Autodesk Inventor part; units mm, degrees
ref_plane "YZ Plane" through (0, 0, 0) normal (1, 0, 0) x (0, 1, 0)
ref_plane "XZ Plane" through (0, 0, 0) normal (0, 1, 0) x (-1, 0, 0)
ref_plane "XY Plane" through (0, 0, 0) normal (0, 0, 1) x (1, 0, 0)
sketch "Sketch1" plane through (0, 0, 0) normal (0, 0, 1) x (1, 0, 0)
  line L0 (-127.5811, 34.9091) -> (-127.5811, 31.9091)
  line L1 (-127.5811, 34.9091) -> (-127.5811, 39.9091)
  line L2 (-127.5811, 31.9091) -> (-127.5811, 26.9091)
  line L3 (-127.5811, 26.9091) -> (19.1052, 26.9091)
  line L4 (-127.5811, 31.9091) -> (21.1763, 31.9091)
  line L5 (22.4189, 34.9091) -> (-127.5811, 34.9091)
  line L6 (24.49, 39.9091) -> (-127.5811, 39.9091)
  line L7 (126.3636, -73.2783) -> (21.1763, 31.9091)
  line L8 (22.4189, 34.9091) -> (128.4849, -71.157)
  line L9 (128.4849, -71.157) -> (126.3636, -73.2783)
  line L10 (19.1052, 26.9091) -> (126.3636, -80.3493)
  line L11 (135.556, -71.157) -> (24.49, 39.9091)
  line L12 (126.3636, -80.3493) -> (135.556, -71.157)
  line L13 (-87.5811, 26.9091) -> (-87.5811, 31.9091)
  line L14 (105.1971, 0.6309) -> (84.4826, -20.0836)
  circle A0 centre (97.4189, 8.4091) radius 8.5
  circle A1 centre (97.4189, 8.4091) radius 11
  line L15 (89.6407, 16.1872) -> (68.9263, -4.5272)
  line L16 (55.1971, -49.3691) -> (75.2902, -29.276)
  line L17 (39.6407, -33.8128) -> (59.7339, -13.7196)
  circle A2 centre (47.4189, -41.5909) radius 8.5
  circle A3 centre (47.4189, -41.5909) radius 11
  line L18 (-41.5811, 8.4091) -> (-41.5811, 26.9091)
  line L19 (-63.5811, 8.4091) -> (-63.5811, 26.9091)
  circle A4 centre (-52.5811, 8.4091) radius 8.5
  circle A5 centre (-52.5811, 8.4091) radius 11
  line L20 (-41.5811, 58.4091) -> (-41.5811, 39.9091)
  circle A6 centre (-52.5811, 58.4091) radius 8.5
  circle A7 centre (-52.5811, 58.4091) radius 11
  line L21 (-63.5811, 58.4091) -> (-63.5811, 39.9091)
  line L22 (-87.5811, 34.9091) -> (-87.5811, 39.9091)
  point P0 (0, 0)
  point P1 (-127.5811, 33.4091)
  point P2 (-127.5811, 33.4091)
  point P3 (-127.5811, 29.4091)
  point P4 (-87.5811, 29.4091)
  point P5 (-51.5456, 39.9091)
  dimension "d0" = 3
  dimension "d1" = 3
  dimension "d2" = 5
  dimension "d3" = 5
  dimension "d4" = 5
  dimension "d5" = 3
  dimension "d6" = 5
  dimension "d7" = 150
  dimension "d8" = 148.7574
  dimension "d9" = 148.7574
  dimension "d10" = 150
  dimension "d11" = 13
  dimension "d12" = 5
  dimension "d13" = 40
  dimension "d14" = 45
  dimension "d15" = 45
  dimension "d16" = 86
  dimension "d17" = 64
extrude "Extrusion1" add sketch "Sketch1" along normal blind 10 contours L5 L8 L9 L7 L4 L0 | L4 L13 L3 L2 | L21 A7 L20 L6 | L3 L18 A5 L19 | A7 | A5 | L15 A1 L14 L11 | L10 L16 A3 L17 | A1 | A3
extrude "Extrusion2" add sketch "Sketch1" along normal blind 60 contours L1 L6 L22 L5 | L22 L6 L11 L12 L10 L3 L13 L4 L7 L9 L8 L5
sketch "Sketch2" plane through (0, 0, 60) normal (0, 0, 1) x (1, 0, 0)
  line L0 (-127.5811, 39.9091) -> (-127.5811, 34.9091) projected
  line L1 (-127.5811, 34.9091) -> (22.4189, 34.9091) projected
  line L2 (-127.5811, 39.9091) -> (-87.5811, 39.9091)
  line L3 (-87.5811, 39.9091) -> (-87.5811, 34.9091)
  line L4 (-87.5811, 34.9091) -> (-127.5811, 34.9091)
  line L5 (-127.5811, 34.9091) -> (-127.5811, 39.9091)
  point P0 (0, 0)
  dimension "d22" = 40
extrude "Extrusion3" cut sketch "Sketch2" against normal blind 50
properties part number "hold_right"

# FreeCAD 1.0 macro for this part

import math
import FreeCAD as App
import Part
import Sketcher

V = App.Vector
Q = App.Units.Quantity


def add_polygon(sketch, points):
    """Adds a closed chain of lines whose ends are joined by coincident constraints."""
    first, n = sketch.GeometryCount, len(points)
    for a, b in zip(points, points[1:] + points[:1]):
        sketch.addGeometry(Part.LineSegment(App.Vector(*a, 0), App.Vector(*b, 0)), False)
    for i in range(n):
        sketch.addConstraint(Sketcher.Constraint("Coincident", first + i, 2, first + (i + 1) % n, 1))

doc = App.newDocument("Part")
body = doc.addObject("PartDesign::Body", "Body")
body.AllowCompound = True

# Sketch on XY plane
sketch1 = body.newObject("Sketcher::SketchObject", "Sketch")
sketch1.AttachmentSupport = (doc.getObject("XY_Plane"), [""])
sketch1.MapMode = "FlatFace"
add_polygon(sketch1, [(-127.5811, 34.9091), (-127.5811, 26.9091), (-87.5811, 26.9091), (-87.5811, 31.9091), (21.1763, 31.9091), (126.3636, -73.2783), (128.4849, -71.157), (22.4189, 34.9091)])  # lines 0-7
sketch1.addGeometry(Part.LineSegment(V(-63.5811, 58.4091, 0), V(-63.5811, 39.9091, 0)), False)  # 8
sketch1.addGeometry(Part.LineSegment(V(-63.5811, 39.9091, 0), V(-41.5811, 39.9091, 0)), False)  # 9
sketch1.addGeometry(Part.LineSegment(V(-41.5811, 39.9091, 0), V(-41.5811, 58.4091, 0)), False)  # 10
sketch1.addGeometry(Part.ArcOfCircle(Part.Circle(V(-52.5811, 58.4091, 0), V(0, 0, 1), 11), math.radians(0), math.radians(180)), False)  # 11
sketch1.addGeometry(Part.Circle(V(-52.5811, 58.4091, 0), V(0, 0, 1), 8.5), False)  # 12
sketch1.addGeometry(Part.LineSegment(V(-41.5811, 26.9091, 0), V(-63.5811, 26.9091, 0)), False)  # 13
sketch1.addGeometry(Part.LineSegment(V(-63.5811, 26.9091, 0), V(-63.5811, 8.4091, 0)), False)  # 14
sketch1.addGeometry(Part.ArcOfCircle(Part.Circle(V(-52.5811, 8.4091, 0), V(0, 0, 1), 11), math.radians(180), math.radians(360)), False)  # 15
sketch1.addGeometry(Part.LineSegment(V(-41.5811, 8.4091, 0), V(-41.5811, 26.9091, 0)), False)  # 16
sketch1.addGeometry(Part.Circle(V(-52.5811, 8.4091, 0), V(0, 0, 1), 8.5), False)  # 17
sketch1.addGeometry(Part.LineSegment(V(89.6407, 16.1872, 0), V(68.9263, -4.5272, 0)), False)  # 18
sketch1.addGeometry(Part.LineSegment(V(68.92628, -4.52722, 0), V(84.482623, -20.083577, 0)), False)  # 19
sketch1.addGeometry(Part.LineSegment(V(84.4826, -20.0836, 0), V(105.1971, 0.6309, 0)), False)  # 20
sketch1.addGeometry(Part.ArcOfCircle(Part.Circle(V(97.4189, 8.4091, 0), V(0, 0, 1), 11), math.radians(-45), math.radians(135.000368)), False)  # 21
sketch1.addGeometry(Part.Circle(V(97.4189, 8.4091, 0), V(0, 0, 1), 8.5), False)  # 22
sketch1.addGeometry(Part.LineSegment(V(75.29025, -29.27595, 0), V(59.7339, -13.7196, 0)), False)  # 23
sketch1.addGeometry(Part.LineSegment(V(59.7339, -13.7196, 0), V(39.6407, -33.8128, 0)), False)  # 24
sketch1.addGeometry(Part.ArcOfCircle(Part.Circle(V(47.4189, -41.5909, 0), V(0, 0, 1), 11), math.radians(135.000368), math.radians(315)), False)  # 25
sketch1.addGeometry(Part.LineSegment(V(55.1971, -49.3691, 0), V(75.2902, -29.276, 0)), False)  # 26
sketch1.addGeometry(Part.Circle(V(47.4189, -41.5909, 0), V(0, 0, 1), 8.5), False)  # 27
sketch1.addConstraint(Sketcher.Constraint("Coincident", 8, 2, 9, 1))
sketch1.addConstraint(Sketcher.Constraint("Coincident", 9, 2, 10, 1))
sketch1.addConstraint(Sketcher.Constraint("Tangent", 10, 2, 11, 1))
sketch1.addConstraint(Sketcher.Constraint("Tangent", 11, 2, 8, 1))
sketch1.addConstraint(Sketcher.Constraint("Coincident", 13, 2, 14, 1))
sketch1.addConstraint(Sketcher.Constraint("Tangent", 14, 2, 15, 1))
sketch1.addConstraint(Sketcher.Constraint("Tangent", 15, 2, 16, 1))
sketch1.addConstraint(Sketcher.Constraint("Coincident", 16, 2, 13, 1))
sketch1.addConstraint(Sketcher.Constraint("Coincident", 18, 2, 19, 1))
sketch1.addConstraint(Sketcher.Constraint("Coincident", 19, 2, 20, 1))
sketch1.addConstraint(Sketcher.Constraint("Tangent", 20, 2, 21, 1))
sketch1.addConstraint(Sketcher.Constraint("Tangent", 21, 2, 18, 1))
sketch1.addConstraint(Sketcher.Constraint("Coincident", 23, 2, 24, 1))
sketch1.addConstraint(Sketcher.Constraint("Tangent", 24, 2, 25, 1))
sketch1.addConstraint(Sketcher.Constraint("Tangent", 25, 2, 26, 1))
sketch1.addConstraint(Sketcher.Constraint("Coincident", 26, 2, 23, 1))
sketch1.addConstraint(Sketcher.Constraint("Vertical", 0))
sketch1.addConstraint(Sketcher.Constraint("Horizontal", 1))
sketch1.addConstraint(Sketcher.Constraint("Vertical", 2))
sketch1.addConstraint(Sketcher.Constraint("Horizontal", 3))
sketch1.addConstraint(Sketcher.Constraint("Horizontal", 7))
sketch1.addConstraint(Sketcher.Constraint("Vertical", 8))
sketch1.addConstraint(Sketcher.Constraint("Horizontal", 9))
sketch1.addConstraint(Sketcher.Constraint("Vertical", 10))
sketch1.addConstraint(Sketcher.Constraint("Horizontal", 13))
sketch1.addConstraint(Sketcher.Constraint("Vertical", 14))
sketch1.addConstraint(Sketcher.Constraint("Vertical", 16))
sketch1.addConstraint(Sketcher.Constraint("Coincident", 12, 3, 11, 3))
sketch1.addConstraint(Sketcher.Constraint("Coincident", 17, 3, 15, 3))
sketch1.addConstraint(Sketcher.Constraint("Coincident", 22, 3, 21, 3))
sketch1.addConstraint(Sketcher.Constraint("Coincident", 27, 3, 25, 3))
sketch1.addConstraint(Sketcher.Constraint("Equal", 11, 15))
sketch1.addConstraint(Sketcher.Constraint("Equal", 12, 17))
sketch1.addConstraint(Sketcher.Constraint("Equal", 15, 21))
sketch1.addConstraint(Sketcher.Constraint("Equal", 17, 22))
sketch1.addConstraint(Sketcher.Constraint("Equal", 21, 25))
sketch1.addConstraint(Sketcher.Constraint("Equal", 22, 27))
sketch1.addConstraint(Sketcher.Constraint("Perpendicular", 4, 5))
sketch1.addConstraint(Sketcher.Constraint("Perpendicular", 5, 6))
sketch1.addConstraint(Sketcher.Constraint("Perpendicular", 6, 18))
sketch1.addConstraint(Sketcher.Constraint("Perpendicular", 18, 19))
sketch1.addConstraint(Sketcher.Constraint("Perpendicular", 19, 20))
sketch1.addConstraint(Sketcher.Constraint("Perpendicular", 20, 23))
sketch1.addConstraint(Sketcher.Constraint("Perpendicular", 23, 24))
sketch1.addConstraint(Sketcher.Constraint("Parallel", 24, 26))
sketch1.addConstraint(Sketcher.Constraint("Horizontal", 17, 3, 21, 3))
sketch1.addConstraint(Sketcher.Constraint("Horizontal", 1, 2, 13, 2))
sketch1.addConstraint(Sketcher.Constraint("Vertical", 12, 3, 15, 3))
sketch1.addConstraint(Sketcher.Constraint("Equal", 10, 14))
sketch1.addConstraint(Sketcher.Constraint("DistanceX", 1, 1, 1, 2, Q("40 mm")))
sketch1.addConstraint(Sketcher.Constraint("DistanceX", 7, 2, 7, 1, Q("150 mm")))
sketch1.addConstraint(Sketcher.Constraint("DistanceY", 2, 1, 2, 2, Q("5 mm")))
sketch1.addConstraint(Sketcher.Constraint("Angle", 4, Q("-45 deg")))
sketch1.addConstraint(Sketcher.Constraint("Distance", 5, Q("3 mm")))
sketch1.addConstraint(Sketcher.Constraint("Distance", 6, Q("150 mm")))
sketch1.addConstraint(Sketcher.Constraint("Diameter", 12, Q("17 mm")))
sketch1.addConstraint(Sketcher.Constraint("Radius", 11, Q("11 mm")))
sketch1.addConstraint(Sketcher.Constraint("DistanceX", 15, 3, 21, 3, Q("150 mm")))
sketch1.addConstraint(Sketcher.Constraint("DistanceY", 3, 2, 6, 2, Q("3 mm")))
sketch1.addConstraint(Sketcher.Constraint("DistanceY", 1, 2, 8, 2, Q("13 mm")))
sketch1.addConstraint(Sketcher.Constraint("DistanceY", 8, 2, 8, 1, Q("18.5 mm")))
sketch1.addConstraint(Sketcher.Constraint("DistanceX", 25, 3, 21, 3, Q("50 mm")))
sketch1.addConstraint(Sketcher.Constraint("DistanceY", 25, 3, 21, 3, Q("50 mm")))
sketch1.addConstraint(Sketcher.Constraint("DistanceX", 0, 2, 15, 3, Q("75 mm")))
sketch1.addConstraint(Sketcher.Constraint("DistanceX", 3, 2, 18, 2, Q("47.75 mm")))
sketch1.addConstraint(Sketcher.Constraint("Distance", 24, Q("28.416 mm")))
sketch1.addConstraint(Sketcher.Constraint("DistanceX", 11, 3, -1, 1, Q("52.581 mm")))
sketch1.addConstraint(Sketcher.Constraint("DistanceY", -1, 1, 11, 3, Q("58.409 mm")))
pad1 = body.newObject("PartDesign::Pad", "Pad")
pad1.Profile = sketch1
pad1.Length = 10

# Sketch on XY plane
sketch2 = body.newObject("Sketcher::SketchObject", "Sketch001")
sketch2.AttachmentSupport = (doc.getObject("XY_Plane"), [""])
sketch2.MapMode = "FlatFace"
add_polygon(sketch2, [(-127.5811, 39.9091), (-127.5811, 34.9091), (22.4189, 34.9091), (128.4849, -71.157), (126.3636, -73.2783), (21.1763, 31.9091), (-87.5811, 31.9091), (-87.5811, 26.9091), (19.1052, 26.9091), (126.3636, -80.3493), (135.556, -71.157), (24.49, 39.9091)])  # lines 0-11
sketch2.addConstraint(Sketcher.Constraint("Vertical", 0))
sketch2.addConstraint(Sketcher.Constraint("Horizontal", 1))
sketch2.addConstraint(Sketcher.Constraint("Horizontal", 5))
sketch2.addConstraint(Sketcher.Constraint("Vertical", 6))
sketch2.addConstraint(Sketcher.Constraint("Horizontal", 7))
sketch2.addConstraint(Sketcher.Constraint("Horizontal", 11))
sketch2.addConstraint(Sketcher.Constraint("Perpendicular", 2, 3))
sketch2.addConstraint(Sketcher.Constraint("Perpendicular", 3, 4))
sketch2.addConstraint(Sketcher.Constraint("Parallel", 4, 8))
sketch2.addConstraint(Sketcher.Constraint("Perpendicular", 8, 9))
sketch2.addConstraint(Sketcher.Constraint("Perpendicular", 9, 10))
sketch2.addConstraint(Sketcher.Constraint("Horizontal", 2, 2, 9, 2))
sketch2.addConstraint(Sketcher.Constraint("Vertical", 3, 2, 8, 2))
sketch2.addConstraint(Sketcher.Constraint("Equal", 0, 6))
sketch2.addConstraint(Sketcher.Constraint("DistanceX", 1, 1, 1, 2, Q("150 mm")))
sketch2.addConstraint(Sketcher.Constraint("DistanceY", 0, 2, 0, 1, Q("5 mm")))
sketch2.addConstraint(Sketcher.Constraint("Angle", 2, Q("-45 deg")))
sketch2.addConstraint(Sketcher.Constraint("Distance", 2, Q("150 mm")))
sketch2.addConstraint(Sketcher.Constraint("Distance", 3, Q("3 mm")))
sketch2.addConstraint(Sketcher.Constraint("Distance", 9, Q("13 mm")))
sketch2.addConstraint(Sketcher.Constraint("DistanceY", 4, 2, 1, 2, Q("3 mm")))
sketch2.addConstraint(Sketcher.Constraint("DistanceX", 0, 2, 5, 2, Q("40 mm")))
sketch2.addConstraint(Sketcher.Constraint("DistanceX", -1, 1, 10, 2, Q("24.49 mm")))
sketch2.addConstraint(Sketcher.Constraint("DistanceY", -1, 1, 0, 2, Q("34.909 mm")))
pad2 = body.newObject("PartDesign::Pad", "Pad001")
pad2.Profile = sketch2
pad2.Length = 60

# Sketch on XY plane
sketch3 = body.newObject("Sketcher::SketchObject", "Sketch002")
sketch3.AttachmentSupport = (doc.getObject("XY_Plane"), [""])
sketch3.MapMode = "FlatFace"
sketch3.AttachmentOffset = App.Placement(V(0, 0, 60), App.Rotation())
add_polygon(sketch3, [(-87.5811, 39.9091), (-127.5811, 39.9091), (-127.5811, 34.9091), (-87.5811, 34.9091)])  # lines 0-3
sketch3.addConstraint(Sketcher.Constraint("Horizontal", 0))
sketch3.addConstraint(Sketcher.Constraint("Vertical", 1))
sketch3.addConstraint(Sketcher.Constraint("Horizontal", 2))
sketch3.addConstraint(Sketcher.Constraint("Vertical", 3))
sketch3.addConstraint(Sketcher.Constraint("DistanceX", 0, 2, 0, 1, Q("40 mm")))
sketch3.addConstraint(Sketcher.Constraint("DistanceY", 1, 2, 1, 1, Q("5 mm")))
sketch3.addConstraint(Sketcher.Constraint("DistanceX", 0, 2, -1, 1, Q("127.581 mm")))
sketch3.addConstraint(Sketcher.Constraint("DistanceY", -1, 1, 0, 2, Q("39.909 mm")))
pocket1 = body.newObject("PartDesign::Pocket", "Pocket")
pocket1.Profile = sketch3
pocket1.Length = 50

doc.recompute()
